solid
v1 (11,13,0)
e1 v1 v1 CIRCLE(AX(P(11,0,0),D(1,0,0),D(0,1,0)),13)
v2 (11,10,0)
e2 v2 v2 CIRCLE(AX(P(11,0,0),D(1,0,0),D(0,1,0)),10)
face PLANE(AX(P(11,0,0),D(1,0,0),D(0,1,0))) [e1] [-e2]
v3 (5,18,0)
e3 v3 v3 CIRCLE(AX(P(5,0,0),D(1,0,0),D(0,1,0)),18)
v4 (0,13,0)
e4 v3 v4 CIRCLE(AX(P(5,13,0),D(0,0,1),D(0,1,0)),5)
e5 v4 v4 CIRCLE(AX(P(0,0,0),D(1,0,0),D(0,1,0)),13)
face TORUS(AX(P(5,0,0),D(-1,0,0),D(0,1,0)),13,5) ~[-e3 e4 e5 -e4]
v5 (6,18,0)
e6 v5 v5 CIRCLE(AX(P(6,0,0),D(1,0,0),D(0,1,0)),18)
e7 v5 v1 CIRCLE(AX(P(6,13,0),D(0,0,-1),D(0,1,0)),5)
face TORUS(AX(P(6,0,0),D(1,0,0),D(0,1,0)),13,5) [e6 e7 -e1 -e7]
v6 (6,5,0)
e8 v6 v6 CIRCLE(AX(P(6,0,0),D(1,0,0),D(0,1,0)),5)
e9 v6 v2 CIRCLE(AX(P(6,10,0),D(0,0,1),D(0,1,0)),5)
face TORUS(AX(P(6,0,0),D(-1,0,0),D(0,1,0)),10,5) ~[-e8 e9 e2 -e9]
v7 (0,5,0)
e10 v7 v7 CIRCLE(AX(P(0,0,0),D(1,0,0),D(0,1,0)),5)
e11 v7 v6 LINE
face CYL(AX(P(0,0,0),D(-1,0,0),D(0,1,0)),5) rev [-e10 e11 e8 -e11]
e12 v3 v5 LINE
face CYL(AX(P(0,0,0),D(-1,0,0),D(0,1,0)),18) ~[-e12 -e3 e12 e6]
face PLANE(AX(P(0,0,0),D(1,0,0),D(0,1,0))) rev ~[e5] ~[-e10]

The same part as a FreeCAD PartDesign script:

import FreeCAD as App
import Part
import Sketcher

V = App.Vector


def edges_at(feature, points):
    """Names of the edges that pass closest to the given points."""
    edges = feature.Shape.Edges
    near = lambda p: min(range(len(edges)), key=lambda i: edges[i].distToShape(Part.Vertex(*p))[0])
    return sorted({f"Edge{near(p) + 1}" for p in points})

doc = App.newDocument("Part")
body = doc.addObject("PartDesign::Body", "Body")

# Sketch on YZ plane
sketch1 = doc.addObject("Sketcher::SketchObject", "Sketch")
body.addObject(sketch1)
sketch1.AttachmentSupport = (doc.YZ_Plane, [""])
sketch1.MapMode = "FlatFace"
sketch1.addGeometry([
    Part.Circle(V(0, 0, 0), V(0, 0, 1), 18),
    Part.Circle(V(0, 0, 0), V(0, 0, 1), 5),
], False)
sketch1.addConstraint([
    Sketcher.Constraint("Coincident", 0, 3, -1, 1),
    Sketcher.Constraint("Coincident", 1, 3, -1, 1),
    Sketcher.Constraint("Diameter", 0, 36.0),
    Sketcher.Constraint("Diameter", 1, 10.0),
])
pad1 = doc.addObject("PartDesign::Pad", "Pad")
body.addObject(pad1)
pad1.Profile = sketch1
pad1.Length = 11
doc.recompute()

fillet = doc.addObject("PartDesign::Fillet", "Fillet")
body.addObject(fillet)
fillet.Base = (pad1, edges_at(pad1, [
    (5.5, 18, 0),
    (0, -18, 0),
    (11, -18, 0),
    (11, -5, 0),
]))
fillet.Radius = 5

doc.recompute()
